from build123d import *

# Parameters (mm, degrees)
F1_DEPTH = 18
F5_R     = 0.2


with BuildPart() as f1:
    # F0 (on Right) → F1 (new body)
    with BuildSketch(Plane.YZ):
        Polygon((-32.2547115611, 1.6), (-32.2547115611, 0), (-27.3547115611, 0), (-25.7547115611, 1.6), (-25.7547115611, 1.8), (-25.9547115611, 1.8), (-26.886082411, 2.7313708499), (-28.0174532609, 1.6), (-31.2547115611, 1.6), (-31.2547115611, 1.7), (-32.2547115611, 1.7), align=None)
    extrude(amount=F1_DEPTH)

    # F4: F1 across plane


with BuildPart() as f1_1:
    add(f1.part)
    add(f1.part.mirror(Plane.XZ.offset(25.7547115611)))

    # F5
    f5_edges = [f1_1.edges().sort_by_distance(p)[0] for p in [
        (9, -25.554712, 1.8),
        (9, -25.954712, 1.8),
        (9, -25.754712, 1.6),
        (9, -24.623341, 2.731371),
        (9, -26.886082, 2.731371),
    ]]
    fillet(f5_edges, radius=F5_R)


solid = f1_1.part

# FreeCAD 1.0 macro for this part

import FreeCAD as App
import Part
import Sketcher

V = App.Vector
Q = App.Units.Quantity


def edges_at(feature, points):
    """Names of the edges that pass closest to the given points."""
    edges = feature.Shape.Edges
    near = lambda p: min(range(len(edges)), key=lambda i: edges[i].distToShape(Part.Vertex(*p))[0])
    return sorted({f"Edge{near(p) + 1}" for p in points})

doc = App.newDocument("Part")
body = doc.addObject("PartDesign::Body", "Body")

# Sketch on YZ plane
sketch1 = body.newObject("Sketcher::SketchObject", "Sketch")
sketch1.AttachmentSupport = (doc.getObject("YZ_Plane"), [""])
sketch1.MapMode = "FlatFace"
sketch1.addGeometry(Part.LineSegment(V(-32.25, 0, 0), V(-27.35, 0, 0)), False)
sketch1.addGeometry(Part.LineSegment(V(-27.35, 0, 0), V(-25.75, 1.6, 0)), False)
sketch1.addGeometry(Part.LineSegment(V(-25.75, 1.6, 0), V(-25.75, 1.8, 0)), False)
sketch1.addGeometry(Part.LineSegment(V(-25.75, 1.8, 0), V(-25.95, 1.8, 0)), False)
sketch1.addGeometry(Part.LineSegment(V(-25.95, 1.8, 0), V(-26.89, 2.73, 0)), False)
sketch1.addGeometry(Part.LineSegment(V(-26.89, 2.73, 0), V(-28.02, 1.6, 0)), False)
sketch1.addGeometry(Part.LineSegment(V(-28.02, 1.6, 0), V(-31.25, 1.6, 0)), False)
sketch1.addGeometry(Part.LineSegment(V(-31.25, 1.6, 0), V(-31.25, 1.7, 0)), False)
sketch1.addGeometry(Part.LineSegment(V(-31.25, 1.7, 0), V(-32.25, 1.7, 0)), False)
sketch1.addGeometry(Part.LineSegment(V(-32.25, 1.7, 0), V(-32.25, 0, 0)), False)
sketch1.addConstraint(Sketcher.Constraint("Coincident", 0, 2, 1, 1))
sketch1.addConstraint(Sketcher.Constraint("Coincident", 1, 2, 2, 1))
sketch1.addConstraint(Sketcher.Constraint("Coincident", 2, 2, 3, 1))
sketch1.addConstraint(Sketcher.Constraint("Coincident", 3, 2, 4, 1))
sketch1.addConstraint(Sketcher.Constraint("Coincident", 4, 2, 5, 1))
sketch1.addConstraint(Sketcher.Constraint("Coincident", 5, 2, 6, 1))
sketch1.addConstraint(Sketcher.Constraint("Coincident", 6, 2, 7, 1))
sketch1.addConstraint(Sketcher.Constraint("Coincident", 7, 2, 8, 1))
sketch1.addConstraint(Sketcher.Constraint("Coincident", 8, 2, 9, 1))
sketch1.addConstraint(Sketcher.Constraint("Coincident", 9, 2, 0, 1))
sketch1.addConstraint(Sketcher.Constraint("Horizontal", 0))
sketch1.addConstraint(Sketcher.Constraint("Vertical", 2))
sketch1.addConstraint(Sketcher.Constraint("Horizontal", 3))
sketch1.addConstraint(Sketcher.Constraint("Horizontal", 6))
sketch1.addConstraint(Sketcher.Constraint("Vertical", 7))
sketch1.addConstraint(Sketcher.Constraint("Horizontal", 8))
sketch1.addConstraint(Sketcher.Constraint("Vertical", 9))
sketch1.addConstraint(Sketcher.Constraint("PointOnObject", 0, 2, -1))
sketch1.addConstraint(Sketcher.Constraint("Perpendicular", 1, 4))
sketch1.addConstraint(Sketcher.Constraint("Perpendicular", 4, 5))
sketch1.addConstraint(Sketcher.Constraint("Horizontal", 1, 2, 5, 2))
sketch1.addConstraint(Sketcher.Constraint("Equal", 3, 2))
sketch1.addConstraint(Sketcher.Constraint("DistanceX", 8, 2, 8, 1, 1.0))
sketch1.addConstraint(Sketcher.Constraint("Angle", 1, Q("45 deg")))
sketch1.addConstraint(Sketcher.Constraint("DistanceX", 0, 1, 0, 2, 4.9))
sketch1.addConstraint(Sketcher.Constraint("DistanceX", 3, 2, 3, 1, 0.2))
sketch1.addConstraint(Sketcher.Constraint("DistanceY", 7, 1, 7, 2, 0.1))
sketch1.addConstraint(Sketcher.Constraint("DistanceY", 9, 2, 9, 1, 1.7))
sketch1.addConstraint(Sketcher.Constraint("Distance", 5, 1.6))
sketch1.addConstraint(Sketcher.Constraint("DistanceX", 0, 2, -1, 1, 27.354712))
pad1 = body.newObject("PartDesign::Pad", "Pad")
pad1.Profile = sketch1
pad1.Length = 18
body2 = doc.addObject("PartDesign::Body", "Body001")
doc.recompute()

body2.BaseFeature = body
doc.recompute()

mirroring = doc.addObject("Part::Mirroring", "Mirroring")
mirroring.Source = body
mirroring.Base = V(0, -25.754712, 0)
mirroring.Normal = V(0, -1, 0)
body3 = doc.addObject("PartDesign::Body", "Body002")
body3.BaseFeature = mirroring
boolean = body2.newObject("PartDesign::Boolean", "Boolean")
boolean.Type = "Fuse"
boolean.addObjects([body3])
doc.recompute()

fillet = body2.newObject("PartDesign::Fillet", "Fillet")
fillet.Base = (boolean, edges_at(boolean, [
    (9, -25.555, 1.8),
    (9, -25.955, 1.8),
    (9, -25.755, 1.6),
    (9, -24.623, 2.731),
    (9, -26.886, 2.731),
]))
fillet.Radius = 0.2
mirroring.Visibility = False

doc.recompute()
